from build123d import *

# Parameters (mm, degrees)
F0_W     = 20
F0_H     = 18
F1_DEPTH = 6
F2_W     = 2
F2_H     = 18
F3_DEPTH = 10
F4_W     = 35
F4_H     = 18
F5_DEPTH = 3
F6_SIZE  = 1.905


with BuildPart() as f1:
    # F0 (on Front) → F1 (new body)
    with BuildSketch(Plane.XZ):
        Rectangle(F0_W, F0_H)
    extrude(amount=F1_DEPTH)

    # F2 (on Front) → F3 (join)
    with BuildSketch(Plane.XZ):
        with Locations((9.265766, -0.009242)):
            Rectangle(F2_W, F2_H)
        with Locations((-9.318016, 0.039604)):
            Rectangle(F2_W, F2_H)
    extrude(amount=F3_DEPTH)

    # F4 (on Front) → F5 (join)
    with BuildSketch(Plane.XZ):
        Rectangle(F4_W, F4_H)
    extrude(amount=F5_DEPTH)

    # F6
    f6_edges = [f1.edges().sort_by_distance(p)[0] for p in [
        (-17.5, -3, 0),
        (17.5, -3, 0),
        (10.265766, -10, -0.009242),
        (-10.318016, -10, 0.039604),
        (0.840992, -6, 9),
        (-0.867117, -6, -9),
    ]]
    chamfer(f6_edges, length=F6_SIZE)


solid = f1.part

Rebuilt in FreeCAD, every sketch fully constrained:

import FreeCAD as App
import Part
import Sketcher

V = App.Vector
Q = App.Units.Quantity


def edges_at(feature, points):
    """Names of the edges that pass closest to the given points."""
    edges = feature.Shape.Edges
    near = lambda p: min(range(len(edges)), key=lambda i: edges[i].distToShape(Part.Vertex(*p))[0])
    return sorted({f"Edge{near(p) + 1}" for p in points})

doc = App.newDocument("Part")
body = doc.addObject("PartDesign::Body", "Body")

# Sketch on XZ plane
sketch1 = body.newObject("Sketcher::SketchObject", "Sketch")
sketch1.AttachmentSupport = (doc.getObject("XZ_Plane"), [""])
sketch1.MapMode = "FlatFace"
sketch1.addGeometry([
    Part.LineSegment(V(-10, 9, 0), V(-10, -9, 0)),
    Part.LineSegment(V(-10, -9, 0), V(10, -9, 0)),
    Part.LineSegment(V(10, -9, 0), V(10, 9, 0)),
    Part.LineSegment(V(10, 9, 0), V(-10, 9, 0)),
], False)
sketch1.addConstraint([
    Sketcher.Constraint("Coincident", 0, 2, 1, 1),
    Sketcher.Constraint("Coincident", 1, 2, 2, 1),
    Sketcher.Constraint("Coincident", 2, 2, 3, 1),
    Sketcher.Constraint("Coincident", 3, 2, 0, 1),
    Sketcher.Constraint("Vertical", 0),
    Sketcher.Constraint("Horizontal", 1),
    Sketcher.Constraint("Vertical", 2),
    Sketcher.Constraint("Horizontal", 3),
    Sketcher.Constraint("Symmetric", 0, 2, 2, 2, -1, 1),
    Sketcher.Constraint("DistanceX", 1, 1, 1, 2, Q("20 mm")),
    Sketcher.Constraint("DistanceY", 0, 2, 0, 1, Q("18 mm")),
])
pad1 = body.newObject("PartDesign::Pad", "Pad")
pad1.Profile = sketch1
pad1.Length = 6

# Sketch on XZ plane
sketch2 = body.newObject("Sketcher::SketchObject", "Sketch001")
sketch2.AttachmentSupport = (doc.getObject("XZ_Plane"), [""])
sketch2.MapMode = "FlatFace"
sketch2.addGeometry([
    Part.LineSegment(V(8.3, 9, 0), V(8.3, -9, 0)),  # 0
    Part.LineSegment(V(8.3, -9, 0), V(10.3, -9, 0)),  # 1
    Part.LineSegment(V(10.3, -9, 0), V(10.3, 9, 0)),  # 2
    Part.LineSegment(V(10.3, 9, 0), V(8.3, 9, 0)),  # 3
    Part.LineSegment(V(-10.3, 9, 0), V(-10.3, -9, 0)),  # 4
    Part.LineSegment(V(-10.3, -9, 0), V(-8.3, -9, 0)),  # 5
    Part.LineSegment(V(-8.3, -9, 0), V(-8.3, 9, 0)),  # 6
    Part.LineSegment(V(-8.3, 9, 0), V(-10.3, 9, 0)),  # 7
], False)
sketch2.addConstraint([
    Sketcher.Constraint("Coincident", 0, 2, 1, 1),
    Sketcher.Constraint("Coincident", 1, 2, 2, 1),
    Sketcher.Constraint("Coincident", 2, 2, 3, 1),
    Sketcher.Constraint("Coincident", 3, 2, 0, 1),
    Sketcher.Constraint("Coincident", 4, 2, 5, 1),
    Sketcher.Constraint("Coincident", 5, 2, 6, 1),
    Sketcher.Constraint("Coincident", 6, 2, 7, 1),
    Sketcher.Constraint("Coincident", 7, 2, 4, 1),
    Sketcher.Constraint("Vertical", 0),
    Sketcher.Constraint("Horizontal", 1),
    Sketcher.Constraint("Vertical", 2),
    Sketcher.Constraint("Horizontal", 3),
    Sketcher.Constraint("Vertical", 4),
    Sketcher.Constraint("Horizontal", 5),
    Sketcher.Constraint("Vertical", 6),
    Sketcher.Constraint("Horizontal", 7),
    Sketcher.Constraint("Equal", 3, 5),
    Sketcher.Constraint("Equal", 2, 4),
    Sketcher.Constraint("DistanceX", 1, 1, 1, 2, Q("2 mm")),
    Sketcher.Constraint("DistanceY", 0, 2, 0, 1, Q("18 mm")),
    Sketcher.Constraint("DistanceX", 4, 2, 0, 2, Q("18.583782 mm")),
    Sketcher.Constraint("DistanceX", -1, 1, 0, 2, Q("8.265766 mm")),
    Sketcher.Constraint("DistanceY", 0, 2, -1, 1, Q("9.009242 mm")),
    Sketcher.Constraint("DistanceY", 4, 2, -1, 1, Q("8.960396 mm")),
])
pad2 = body.newObject("PartDesign::Pad", "Pad001")
pad2.Profile = sketch2
pad2.Length = 10

# Sketch on XZ plane
sketch3 = body.newObject("Sketcher::SketchObject", "Sketch002")
sketch3.AttachmentSupport = (doc.getObject("XZ_Plane"), [""])
sketch3.MapMode = "FlatFace"
sketch3.addGeometry([
    Part.LineSegment(V(-18, 9, 0), V(-18, -9, 0)),
    Part.LineSegment(V(-18, -9, 0), V(18, -9, 0)),
    Part.LineSegment(V(18, -9, 0), V(18, 9, 0)),
    Part.LineSegment(V(18, 9, 0), V(-18, 9, 0)),
], False)
sketch3.addConstraint([
    Sketcher.Constraint("Coincident", 0, 2, 1, 1),
    Sketcher.Constraint("Coincident", 1, 2, 2, 1),
    Sketcher.Constraint("Coincident", 2, 2, 3, 1),
    Sketcher.Constraint("Coincident", 3, 2, 0, 1),
    Sketcher.Constraint("Vertical", 0),
    Sketcher.Constraint("Horizontal", 1),
    Sketcher.Constraint("Vertical", 2),
    Sketcher.Constraint("Horizontal", 3),
    Sketcher.Constraint("Symmetric", 0, 2, 2, 2, -1, 1),
    Sketcher.Constraint("DistanceX", 1, 1, 1, 2, Q("35 mm")),
    Sketcher.Constraint("DistanceY", 0, 2, 0, 1, Q("18 mm")),
])
pad3 = body.newObject("PartDesign::Pad", "Pad002")
pad3.Profile = sketch3
pad3.Length = 3
doc.recompute()

chamfer = body.newObject("PartDesign::Chamfer", "Chamfer")
chamfer.Base = (pad3, edges_at(pad3, [
    (-17.5, -3, 0),
    (17.5, -3, 0),
    (10.266, -10, -0.009),
    (-10.318, -10, 0.04),
    (0.841, -6, 9),
    (-0.867, -6, -9),
]))
chamfer.Size = 1.905

doc.recompute()
